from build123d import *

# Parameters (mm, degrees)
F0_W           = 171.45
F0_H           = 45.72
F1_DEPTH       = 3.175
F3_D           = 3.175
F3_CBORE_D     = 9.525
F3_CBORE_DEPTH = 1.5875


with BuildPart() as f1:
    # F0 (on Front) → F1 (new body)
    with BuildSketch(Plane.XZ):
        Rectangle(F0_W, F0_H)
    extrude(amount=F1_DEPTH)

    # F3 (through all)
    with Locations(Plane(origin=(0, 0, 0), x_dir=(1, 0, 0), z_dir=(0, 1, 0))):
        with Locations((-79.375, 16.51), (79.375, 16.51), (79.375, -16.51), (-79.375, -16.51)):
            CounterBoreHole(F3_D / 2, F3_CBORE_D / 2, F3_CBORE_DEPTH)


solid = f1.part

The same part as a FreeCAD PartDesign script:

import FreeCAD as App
import Part
import Sketcher
Q = App.Units.Quantity


def add_polygon(sketch, points):
    """Adds a closed chain of lines whose ends are joined by coincident constraints."""
    first, n = sketch.GeometryCount, len(points)
    for a, b in zip(points, points[1:] + points[:1]):
        sketch.addGeometry(Part.LineSegment(App.Vector(*a, 0), App.Vector(*b, 0)), False)
    for i in range(n):
        sketch.addConstraint(Sketcher.Constraint("Coincident", first + i, 2, first + (i + 1) % n, 1))

doc = App.newDocument("Part")
params = doc.addObject("Spreadsheet::Sheet", "Params")
for row, (alias, value) in enumerate([
    ("sketch1_height", "1.8 in"),
    ("sketch1_width", "6.75 in"),
    ("pad1_length", "0.125 in"),
    ("sketch2_diameter", "0.125 in"),
    ("hole_diameter", "0.125 in"),
    ("hole_cbore_diameter", "0.375 in"),
    ("hole_cbore_depth", "0.0625 in"),
], start=1):
    params.set(f"A{row}", alias)
    params.set(f"B{row}", "=" + value)
    params.setAlias(f"B{row}", alias)

body = doc.addObject("PartDesign::Body", "Body")

# Sketch on XZ plane
sketch1 = body.newObject("Sketcher::SketchObject", "Sketch")
sketch1.AttachmentSupport = (doc.getObject("XZ_Plane"), [""])
sketch1.MapMode = "FlatFace"
add_polygon(sketch1, [(-86, 23), (-86, -23), (86, -23), (86, 23)])  # lines 0-3
sketch1.addConstraint([
    Sketcher.Constraint("Vertical", 0),
    Sketcher.Constraint("Horizontal", 1),
    Sketcher.Constraint("Vertical", 2),
    Sketcher.Constraint("Horizontal", 3),
    Sketcher.Constraint("Symmetric", 0, 2, 2, 2, -1, 1),
    Sketcher.Constraint("DistanceY", 0, 2, 0, 1, Q("1.8 in")),
    Sketcher.Constraint("DistanceX", 1, 1, 1, 2, Q("6.75 in")),
])
sketch1.setExpression("Constraints[9]", "Params.sketch1_height")
sketch1.setExpression("Constraints[10]", "Params.sketch1_width")
pad1 = body.newObject("PartDesign::Pad", "Pad")
pad1.Profile = sketch1
pad1.setExpression("Length", "Params.pad1_length")

# Sketch on XZ plane
sketch2 = body.newObject("Sketcher::SketchObject", "Sketch001")
sketch2.AttachmentSupport = (doc.getObject("XZ_Plane"), [""])
sketch2.MapMode = "FlatFace"
sketch2.addGeometry([
    Part.Circle(App.Vector(-79.4, -16.5, 0), App.Vector(0, 0, 1), 1.6),
    Part.Circle(App.Vector(79.4, -16.5, 0), App.Vector(0, 0, 1), 1.6),
    Part.Circle(App.Vector(79.4, 16.5, 0), App.Vector(0, 0, 1), 1.6),
    Part.Circle(App.Vector(-79.4, 16.5, 0), App.Vector(0, 0, 1), 1.6),
], False)
sketch2.addConstraint([
    Sketcher.Constraint("Equal", 0, 1),
    Sketcher.Constraint("Equal", 1, 2),
    Sketcher.Constraint("Equal", 2, 3),
    Sketcher.Constraint("Symmetric", 0, 3, 2, 3, -1, 1),
    Sketcher.Constraint("Symmetric", 1, 3, 3, 3, -1, 1),
    Sketcher.Constraint("Symmetric", 0, 3, 1, 3, -2),
    Sketcher.Constraint("Diameter", 0, Q("0.125 in")),
    Sketcher.Constraint("DistanceY", 1, 3, 2, 3, Q("1.3 in")),
    Sketcher.Constraint("DistanceX", 0, 3, 1, 3, Q("6.25 in")),
])
sketch2.setExpression("Constraints[6]", "Params.sketch2_diameter")
doc.recompute()
hole = body.newObject("PartDesign::Hole", "Hole")
hole.Profile = sketch2
hole.ThreadType = "None"
hole.setExpression("Diameter", "Params.hole_diameter")
hole.DepthType = "ThroughAll"
hole.HoleCutType = "Counterbore"
hole.setExpression("HoleCutDiameter", "Params.hole_cbore_diameter")
hole.setExpression("HoleCutDepth", "Params.hole_cbore_depth")
hole.Reversed = True

doc.recompute()
